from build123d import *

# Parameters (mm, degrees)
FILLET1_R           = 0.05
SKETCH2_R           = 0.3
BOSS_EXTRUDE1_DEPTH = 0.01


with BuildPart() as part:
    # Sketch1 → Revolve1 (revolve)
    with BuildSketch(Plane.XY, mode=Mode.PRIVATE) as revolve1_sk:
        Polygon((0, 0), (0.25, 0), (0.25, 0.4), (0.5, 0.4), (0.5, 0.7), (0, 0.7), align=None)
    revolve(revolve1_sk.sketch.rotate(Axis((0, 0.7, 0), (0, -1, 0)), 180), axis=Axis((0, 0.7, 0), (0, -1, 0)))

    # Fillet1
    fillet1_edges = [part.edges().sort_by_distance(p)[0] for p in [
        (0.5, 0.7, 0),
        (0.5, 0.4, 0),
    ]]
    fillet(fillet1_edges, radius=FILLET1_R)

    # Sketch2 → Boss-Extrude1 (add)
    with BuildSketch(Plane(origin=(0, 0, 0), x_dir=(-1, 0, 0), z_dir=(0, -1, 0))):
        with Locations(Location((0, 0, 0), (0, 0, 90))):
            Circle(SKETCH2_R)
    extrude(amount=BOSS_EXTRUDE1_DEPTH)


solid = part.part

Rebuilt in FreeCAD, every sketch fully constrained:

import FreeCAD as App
import Part
import Sketcher
from FreeCAD import Vector


def edges_at(feature, points):
    """Names of the edges that pass closest to the given points."""
    edges = feature.Shape.Edges
    near = lambda p: min(range(len(edges)), key=lambda i: edges[i].distToShape(Part.Vertex(*p))[0])
    return sorted({f"Edge{near(p) + 1}" for p in points})

doc = App.newDocument("Part")
body = doc.addObject("PartDesign::Body", "Body")

sketch1 = body.newObject("Sketcher::SketchObject", "Sketch")
sketch1.AttachmentSupport = (doc.getObject("XY_Plane"), [""])
sketch1.MapMode = "FlatFace"
sketch1.addGeometry([
    Part.LineSegment(Vector(0, 0, 0), Vector(0.25, 0, 0)),
    Part.LineSegment(Vector(0.25, 0, 0), Vector(0.25, 0.4, 0)),
    Part.LineSegment(Vector(0.25, 0.4, 0), Vector(0.5, 0.4, 0)),
    Part.LineSegment(Vector(0.5, 0.4, 0), Vector(0.5, 0.7, 0)),
    Part.LineSegment(Vector(0.5, 0.7, 0), Vector(0, 0.7, 0)),
    Part.LineSegment(Vector(0, 0.7, 0), Vector(0, 0, 0)),
], False)
sketch1.addConstraint([
    Sketcher.Constraint("Coincident", 0, 2, 1, 1),
    Sketcher.Constraint("Coincident", 1, 2, 2, 1),
    Sketcher.Constraint("Coincident", 2, 2, 3, 1),
    Sketcher.Constraint("Coincident", 3, 2, 4, 1),
    Sketcher.Constraint("Coincident", 4, 2, 5, 1),
    Sketcher.Constraint("Coincident", 5, 2, 0, 1),
    Sketcher.Constraint("Horizontal", 0),
    Sketcher.Constraint("Vertical", 1),
    Sketcher.Constraint("Horizontal", 2),
    Sketcher.Constraint("Vertical", 3),
    Sketcher.Constraint("Horizontal", 4),
    Sketcher.Constraint("Vertical", 5),
    Sketcher.Constraint("Coincident", 5, 2, -1, 1),
    Sketcher.Constraint("Equal", 0, 2),
    Sketcher.Constraint("DistanceX", 4, 2, 4, 1, 0.5),
    Sketcher.Constraint("DistanceY", 1, 1, 1, 2, 0.4),
    Sketcher.Constraint("DistanceY", 3, 1, 3, 2, 0.3),
])
revolution = body.newObject("PartDesign::Revolution", "Revolution")
revolution.Profile = sketch1
revolution.ReferenceAxis = (sketch1, ["V_Axis"])
revolution.Angle = 360
doc.recompute()

fillet = body.newObject("PartDesign::Fillet", "Fillet")
fillet.Base = (revolution, edges_at(revolution, [(0.5, 0.7, 0), (0.5, 0.4, 0)]))
fillet.Radius = 0.05

sketch2 = body.newObject("Sketcher::SketchObject", "Sketch001")
sketch2.AttachmentSupport = (doc.getObject("XZ_Plane"), [""])
sketch2.MapMode = "FlatFace"
sketch2.addGeometry(Part.Circle(Vector(0, 0, 0), Vector(0, 0, 1), 0.3), False)
sketch2.addConstraint([
    Sketcher.Constraint("Coincident", 0, 3, -1, 1),
    Sketcher.Constraint("Diameter", 0, 0.6),
])
pad1 = body.newObject("PartDesign::Pad", "Pad")
pad1.Profile = sketch2
pad1.Length = 0.01

doc.recompute()
